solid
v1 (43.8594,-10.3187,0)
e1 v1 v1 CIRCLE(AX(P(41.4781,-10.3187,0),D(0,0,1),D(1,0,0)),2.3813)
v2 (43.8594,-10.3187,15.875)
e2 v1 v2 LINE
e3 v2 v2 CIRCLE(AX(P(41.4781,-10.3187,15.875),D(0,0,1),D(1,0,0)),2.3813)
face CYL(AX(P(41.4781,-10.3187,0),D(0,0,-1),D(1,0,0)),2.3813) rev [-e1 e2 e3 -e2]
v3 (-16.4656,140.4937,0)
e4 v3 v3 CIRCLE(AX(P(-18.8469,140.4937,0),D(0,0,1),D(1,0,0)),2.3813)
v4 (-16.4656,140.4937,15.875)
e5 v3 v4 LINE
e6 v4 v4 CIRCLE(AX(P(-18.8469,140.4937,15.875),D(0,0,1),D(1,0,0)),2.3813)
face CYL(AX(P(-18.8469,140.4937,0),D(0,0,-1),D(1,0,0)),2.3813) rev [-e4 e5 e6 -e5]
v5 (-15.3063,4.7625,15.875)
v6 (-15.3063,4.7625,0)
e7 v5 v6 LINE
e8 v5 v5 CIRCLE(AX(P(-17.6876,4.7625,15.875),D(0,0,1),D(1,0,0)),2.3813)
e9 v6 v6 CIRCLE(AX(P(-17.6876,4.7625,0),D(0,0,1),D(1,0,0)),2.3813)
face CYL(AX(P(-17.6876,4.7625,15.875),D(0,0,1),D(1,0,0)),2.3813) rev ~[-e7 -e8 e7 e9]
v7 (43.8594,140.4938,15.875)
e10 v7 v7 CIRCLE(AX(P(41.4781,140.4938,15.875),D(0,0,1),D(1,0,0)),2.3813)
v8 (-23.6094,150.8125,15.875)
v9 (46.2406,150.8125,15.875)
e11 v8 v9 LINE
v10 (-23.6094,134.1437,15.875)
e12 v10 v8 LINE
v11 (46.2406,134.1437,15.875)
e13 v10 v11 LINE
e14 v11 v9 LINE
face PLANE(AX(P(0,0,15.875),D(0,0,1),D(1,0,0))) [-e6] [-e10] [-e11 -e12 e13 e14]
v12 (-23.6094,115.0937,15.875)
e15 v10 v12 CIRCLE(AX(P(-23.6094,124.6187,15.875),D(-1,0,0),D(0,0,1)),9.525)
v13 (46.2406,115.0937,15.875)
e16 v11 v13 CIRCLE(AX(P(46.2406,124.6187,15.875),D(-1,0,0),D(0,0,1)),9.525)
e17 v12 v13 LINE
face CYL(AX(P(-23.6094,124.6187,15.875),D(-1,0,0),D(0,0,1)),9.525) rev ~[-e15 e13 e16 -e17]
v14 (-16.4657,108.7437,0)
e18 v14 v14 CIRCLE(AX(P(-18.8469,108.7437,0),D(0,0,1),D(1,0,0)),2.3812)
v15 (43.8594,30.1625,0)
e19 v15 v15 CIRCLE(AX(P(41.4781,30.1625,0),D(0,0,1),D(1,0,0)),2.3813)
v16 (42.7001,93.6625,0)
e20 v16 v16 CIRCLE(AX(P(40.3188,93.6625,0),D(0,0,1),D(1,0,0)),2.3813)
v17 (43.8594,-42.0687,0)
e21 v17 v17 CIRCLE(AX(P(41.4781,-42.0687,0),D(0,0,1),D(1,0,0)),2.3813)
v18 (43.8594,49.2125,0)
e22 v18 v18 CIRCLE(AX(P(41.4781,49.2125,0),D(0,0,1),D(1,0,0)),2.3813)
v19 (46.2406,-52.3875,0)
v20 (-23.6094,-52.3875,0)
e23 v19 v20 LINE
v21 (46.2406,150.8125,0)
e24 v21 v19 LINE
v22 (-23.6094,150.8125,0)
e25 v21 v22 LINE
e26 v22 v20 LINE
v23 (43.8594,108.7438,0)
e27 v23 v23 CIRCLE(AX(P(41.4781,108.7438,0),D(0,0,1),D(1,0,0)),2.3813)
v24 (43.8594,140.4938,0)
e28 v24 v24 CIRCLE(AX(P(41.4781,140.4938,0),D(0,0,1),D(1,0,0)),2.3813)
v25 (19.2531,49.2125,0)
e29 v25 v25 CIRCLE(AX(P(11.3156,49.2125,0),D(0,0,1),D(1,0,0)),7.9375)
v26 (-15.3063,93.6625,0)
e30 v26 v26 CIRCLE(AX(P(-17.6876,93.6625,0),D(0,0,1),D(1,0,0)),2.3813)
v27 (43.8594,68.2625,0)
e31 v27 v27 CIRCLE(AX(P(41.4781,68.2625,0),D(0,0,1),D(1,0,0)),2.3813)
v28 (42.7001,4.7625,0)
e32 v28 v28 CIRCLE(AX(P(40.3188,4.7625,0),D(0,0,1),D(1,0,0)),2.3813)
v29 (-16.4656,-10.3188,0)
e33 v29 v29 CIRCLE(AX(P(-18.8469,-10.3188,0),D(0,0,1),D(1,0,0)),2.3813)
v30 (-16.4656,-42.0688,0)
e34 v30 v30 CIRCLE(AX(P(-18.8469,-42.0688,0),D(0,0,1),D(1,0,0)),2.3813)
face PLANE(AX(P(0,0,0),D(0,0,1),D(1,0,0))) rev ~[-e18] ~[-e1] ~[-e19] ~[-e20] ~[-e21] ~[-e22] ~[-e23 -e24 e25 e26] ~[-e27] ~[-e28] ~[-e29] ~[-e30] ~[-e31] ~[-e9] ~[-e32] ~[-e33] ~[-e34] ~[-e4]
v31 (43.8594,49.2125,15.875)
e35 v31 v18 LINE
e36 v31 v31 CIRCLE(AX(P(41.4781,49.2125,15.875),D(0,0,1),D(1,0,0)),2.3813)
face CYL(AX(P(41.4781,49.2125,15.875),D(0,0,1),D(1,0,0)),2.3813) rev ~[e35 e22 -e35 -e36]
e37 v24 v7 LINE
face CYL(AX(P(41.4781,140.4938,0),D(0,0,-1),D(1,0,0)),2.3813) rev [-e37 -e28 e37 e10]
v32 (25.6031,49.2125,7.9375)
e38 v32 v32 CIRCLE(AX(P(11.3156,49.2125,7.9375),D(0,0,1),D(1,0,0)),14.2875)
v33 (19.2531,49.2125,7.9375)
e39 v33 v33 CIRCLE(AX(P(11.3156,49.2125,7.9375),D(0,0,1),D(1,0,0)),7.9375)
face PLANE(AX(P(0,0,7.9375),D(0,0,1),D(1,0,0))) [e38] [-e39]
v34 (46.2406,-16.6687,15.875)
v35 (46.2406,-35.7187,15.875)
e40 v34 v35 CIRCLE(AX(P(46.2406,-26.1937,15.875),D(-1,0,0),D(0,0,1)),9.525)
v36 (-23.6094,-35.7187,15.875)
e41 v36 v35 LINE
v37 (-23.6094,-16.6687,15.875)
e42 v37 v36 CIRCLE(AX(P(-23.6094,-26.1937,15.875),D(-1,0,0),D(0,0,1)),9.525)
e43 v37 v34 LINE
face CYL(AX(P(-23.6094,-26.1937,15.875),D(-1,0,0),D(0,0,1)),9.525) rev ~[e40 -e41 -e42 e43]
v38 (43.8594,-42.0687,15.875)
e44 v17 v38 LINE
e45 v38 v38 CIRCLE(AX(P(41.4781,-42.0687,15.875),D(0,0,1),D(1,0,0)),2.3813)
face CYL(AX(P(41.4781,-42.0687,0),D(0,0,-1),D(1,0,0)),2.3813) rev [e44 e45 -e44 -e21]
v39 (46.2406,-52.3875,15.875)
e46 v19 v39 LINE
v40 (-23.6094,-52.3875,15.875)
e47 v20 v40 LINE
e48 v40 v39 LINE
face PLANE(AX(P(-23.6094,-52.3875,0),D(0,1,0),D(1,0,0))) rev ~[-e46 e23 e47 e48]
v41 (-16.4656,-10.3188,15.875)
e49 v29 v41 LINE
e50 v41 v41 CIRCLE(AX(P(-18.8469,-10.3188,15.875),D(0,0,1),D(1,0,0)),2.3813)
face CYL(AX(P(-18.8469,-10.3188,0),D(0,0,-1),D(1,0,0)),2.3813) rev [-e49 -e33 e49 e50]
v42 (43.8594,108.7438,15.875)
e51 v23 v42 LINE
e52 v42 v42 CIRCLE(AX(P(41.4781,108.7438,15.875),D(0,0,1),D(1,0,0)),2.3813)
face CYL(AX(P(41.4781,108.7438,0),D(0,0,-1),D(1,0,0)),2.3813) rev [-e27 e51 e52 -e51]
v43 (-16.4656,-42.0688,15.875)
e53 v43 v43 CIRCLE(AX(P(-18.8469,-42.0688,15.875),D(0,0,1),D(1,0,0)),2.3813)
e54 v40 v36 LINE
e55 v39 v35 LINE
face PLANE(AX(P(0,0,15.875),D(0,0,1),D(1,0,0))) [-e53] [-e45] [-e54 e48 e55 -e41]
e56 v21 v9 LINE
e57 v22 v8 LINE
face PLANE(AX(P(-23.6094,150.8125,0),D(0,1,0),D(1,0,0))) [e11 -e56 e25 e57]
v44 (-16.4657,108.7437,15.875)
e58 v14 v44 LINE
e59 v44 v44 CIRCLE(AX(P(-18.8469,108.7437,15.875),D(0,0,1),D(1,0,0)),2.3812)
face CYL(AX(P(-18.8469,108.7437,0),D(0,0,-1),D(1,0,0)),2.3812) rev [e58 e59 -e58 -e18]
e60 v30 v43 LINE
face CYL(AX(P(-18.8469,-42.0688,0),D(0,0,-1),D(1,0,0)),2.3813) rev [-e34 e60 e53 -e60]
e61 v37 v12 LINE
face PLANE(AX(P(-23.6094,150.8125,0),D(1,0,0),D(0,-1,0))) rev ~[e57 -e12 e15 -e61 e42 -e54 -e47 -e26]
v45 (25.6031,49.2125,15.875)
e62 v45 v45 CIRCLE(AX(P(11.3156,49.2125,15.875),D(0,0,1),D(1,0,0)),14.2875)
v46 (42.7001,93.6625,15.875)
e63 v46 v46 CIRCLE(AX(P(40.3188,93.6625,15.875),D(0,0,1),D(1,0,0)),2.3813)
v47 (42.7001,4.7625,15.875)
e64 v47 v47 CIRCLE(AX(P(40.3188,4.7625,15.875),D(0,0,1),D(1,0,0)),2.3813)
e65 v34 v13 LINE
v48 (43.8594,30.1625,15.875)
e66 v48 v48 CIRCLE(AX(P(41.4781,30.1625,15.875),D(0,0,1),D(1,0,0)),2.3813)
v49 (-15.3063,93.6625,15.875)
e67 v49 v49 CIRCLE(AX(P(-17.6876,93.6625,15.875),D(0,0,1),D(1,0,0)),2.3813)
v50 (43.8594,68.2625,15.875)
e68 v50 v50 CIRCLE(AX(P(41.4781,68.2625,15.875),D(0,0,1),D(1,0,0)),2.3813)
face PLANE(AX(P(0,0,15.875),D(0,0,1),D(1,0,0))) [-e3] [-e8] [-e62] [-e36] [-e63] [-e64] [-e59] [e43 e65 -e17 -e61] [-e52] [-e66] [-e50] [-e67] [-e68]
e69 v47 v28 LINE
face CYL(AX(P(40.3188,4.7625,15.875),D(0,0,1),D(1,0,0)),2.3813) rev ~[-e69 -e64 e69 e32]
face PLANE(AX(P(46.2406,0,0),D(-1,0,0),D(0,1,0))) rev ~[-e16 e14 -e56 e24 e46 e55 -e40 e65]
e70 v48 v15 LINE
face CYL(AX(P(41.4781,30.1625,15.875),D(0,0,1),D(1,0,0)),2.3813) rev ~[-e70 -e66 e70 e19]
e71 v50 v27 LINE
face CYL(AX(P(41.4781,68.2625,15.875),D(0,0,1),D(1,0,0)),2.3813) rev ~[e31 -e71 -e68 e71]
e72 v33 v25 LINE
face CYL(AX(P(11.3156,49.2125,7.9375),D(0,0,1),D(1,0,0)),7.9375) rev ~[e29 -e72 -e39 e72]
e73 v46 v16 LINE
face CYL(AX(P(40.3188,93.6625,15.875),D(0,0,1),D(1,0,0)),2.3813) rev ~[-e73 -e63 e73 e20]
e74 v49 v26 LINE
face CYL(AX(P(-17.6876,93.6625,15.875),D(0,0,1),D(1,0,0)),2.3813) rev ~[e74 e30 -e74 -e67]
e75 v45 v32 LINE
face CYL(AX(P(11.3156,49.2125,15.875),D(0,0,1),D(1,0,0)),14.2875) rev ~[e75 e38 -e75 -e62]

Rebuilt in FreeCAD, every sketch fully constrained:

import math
import FreeCAD as App
import Part
import Sketcher
Q = App.Units.Quantity


def add_polygon(sketch, points):
    """Adds a closed chain of lines whose ends are joined by coincident constraints."""
    first, n = sketch.GeometryCount, len(points)
    for a, b in zip(points, points[1:] + points[:1]):
        sketch.addGeometry(Part.LineSegment(App.Vector(*a, 0), App.Vector(*b, 0)), False)
    for i in range(n):
        sketch.addConstraint(Sketcher.Constraint("Coincident", first + i, 2, first + (i + 1) % n, 1))

doc = App.newDocument("Part")
body = doc.addObject("PartDesign::Body", "Body")

sketch1 = body.newObject("Sketcher::SketchObject", "Sketch")
sketch1.AttachmentSupport = (doc.getObject("XY_Plane"), [""])
sketch1.MapMode = "FlatFace"
add_polygon(sketch1, [(-23.6, 150.8), (-23.6, -52.4), (46.2, -52.4), (46.2, 150.8)])
sketch1.addGeometry(Part.Circle(App.Vector(-18.8, 108.7, 0), App.Vector(0, 0, 1), 2.4), False)
sketch1.addGeometry(Part.Circle(App.Vector(-18.8, 140.5, 0), App.Vector(0, 0, 1), 2.4), False)
sketch1.addGeometry(Part.Circle(App.Vector(-18.8, -10.3, 0), App.Vector(0, 0, 1), 2.4), False)
sketch1.addGeometry(Part.Circle(App.Vector(-18.8, -42.1, 0), App.Vector(0, 0, 1), 2.4), False)
sketch1.addGeometry(Part.Circle(App.Vector(41.5, 108.7, 0), App.Vector(0, 0, 1), 2.4), False)
sketch1.addGeometry(Part.Circle(App.Vector(41.5, 140.5, 0), App.Vector(0, 0, 1), 2.4), False)
sketch1.addGeometry(Part.Circle(App.Vector(41.5, -42.1, 0), App.Vector(0, 0, 1), 2.4), False)
sketch1.addGeometry(Part.Circle(App.Vector(41.5, -10.3, 0), App.Vector(0, 0, 1), 2.4), False)
sketch1.addConstraint([
    Sketcher.Constraint("Vertical", 0),
    Sketcher.Constraint("Horizontal", 1),
    Sketcher.Constraint("Vertical", 2),
    Sketcher.Constraint("Horizontal", 3),
    Sketcher.Constraint("Equal", 4, 5),
    Sketcher.Constraint("Equal", 5, 6),
    Sketcher.Constraint("Equal", 6, 7),
    Sketcher.Constraint("Equal", 7, 8),
    Sketcher.Constraint("Equal", 8, 9),
    Sketcher.Constraint("Equal", 9, 10),
    Sketcher.Constraint("Equal", 10, 11),
    Sketcher.Constraint("Horizontal", 4, 3, 8, 3),
    Sketcher.Constraint("Horizontal", 5, 3, 9, 3),
    Sketcher.Constraint("Horizontal", 7, 3, 10, 3),
    Sketcher.Constraint("Horizontal", 6, 3, 11, 3),
    Sketcher.Constraint("Vertical", 4, 3, 5, 3),
    Sketcher.Constraint("Vertical", 5, 3, 6, 3),
    Sketcher.Constraint("Vertical", 6, 3, 7, 3),
    Sketcher.Constraint("Vertical", 8, 3, 9, 3),
    Sketcher.Constraint("Vertical", 9, 3, 10, 3),
    Sketcher.Constraint("Vertical", 10, 3, 11, 3),
    Sketcher.Constraint("DistanceY", 0, 2, 0, 1, Q("8 in")),
    Sketcher.Constraint("Diameter", 4, Q("0.1875 in")),
    Sketcher.Constraint("DistanceX", 1, 1, 1, 2, Q("2.75 in")),
    Sketcher.Constraint("DistanceY", 4, 3, 5, 3, Q("1.25 in")),
    Sketcher.Constraint("DistanceY", 7, 3, 6, 3, Q("1.25 in")),
    Sketcher.Constraint("DistanceX", 4, 3, -1, 1, Q("0.742 in")),
    Sketcher.Constraint("DistanceY", -1, 1, 4, 3, Q("4.281248 in")),
    Sketcher.Constraint("DistanceY", 6, 3, -1, 1, Q("0.406252 in")),
    Sketcher.Constraint("DistanceX", -1, 1, 8, 3, Q("1.633 in")),
    Sketcher.Constraint("DistanceY", 0, 2, -1, 1, Q("2.0625 in")),
    Sketcher.Constraint("DistanceX", 0, 2, 7, 3, Q("0.1875 in")),
])
pad1 = body.newObject("PartDesign::Pad", "Pad")
pad1.Profile = sketch1
pad1.Length = Q("0.625 in")

sketch2 = body.newObject("Sketcher::SketchObject", "Sketch001")
sketch2.AttachmentSupport = (doc.getObject("YZ_Plane"), [""])
sketch2.MapMode = "FlatFace"
sketch2.AttachmentOffset = App.Placement(App.Vector(0, 0, -0.9295039 * 25.4), App.Rotation())
sketch2.addGeometry([
    Part.LineSegment(App.Vector(-36, 16, 0), App.Vector(-17, 16, 0)),
    Part.ArcOfCircle(Part.Circle(App.Vector(-26, 16, 0), App.Vector(0, 0, 1), 10), math.radians(180), math.radians(360)),
    Part.ArcOfCircle(Part.Circle(App.Vector(125, 16, 0), App.Vector(0, 0, 1), 10), math.radians(180), math.radians(360)),
    Part.LineSegment(App.Vector(115, 16, 0), App.Vector(134, 16, 0)),
], False)
sketch2.addConstraint([
    Sketcher.Constraint("Coincident", 0, 1, 1, 1),
    Sketcher.Constraint("Coincident", 1, 2, 0, 2),
    Sketcher.Constraint("Coincident", 2, 1, 3, 1),
    Sketcher.Constraint("Coincident", 3, 2, 2, 2),
    Sketcher.Constraint("Horizontal", 0),
    Sketcher.Constraint("Horizontal", 3),
    Sketcher.Constraint("Equal", 1, 2),
    Sketcher.Constraint("Horizontal", 1, 3, 2, 3),
    Sketcher.Constraint("Horizontal", 2, 3, 0, 1),
    Sketcher.Constraint("Horizontal", 1, 2, 2, 1),
    Sketcher.Constraint("Radius", 1, Q("0.375 in")),
    Sketcher.Constraint("DistanceX", 1, 3, -1, 1, Q("1.031248 in")),
    Sketcher.Constraint("DistanceY", -1, 1, 1, 3, Q("0.625 in")),
    Sketcher.Constraint("DistanceX", -1, 1, 2, 3, Q("4.906248 in")),
])
pocket1 = body.newObject("PartDesign::Pocket", "Pocket")
pocket1.Profile = sketch2
pocket1.Length = Q("3 in")
pocket1.Reversed = True

sketch3 = body.newObject("Sketcher::SketchObject", "Sketch002")
sketch3.AttachmentSupport = (doc.getObject("XY_Plane"), [""])
sketch3.MapMode = "FlatFace"
sketch3.AttachmentOffset = App.Placement(App.Vector(0, 0, 0.625 * 25.4), App.Rotation())
sketch3.addGeometry([
    Part.Circle(App.Vector(41.5, 68.3, 0), App.Vector(0, 0, 1), 2.4),
    Part.Circle(App.Vector(41.5, 49.2, 0), App.Vector(0, 0, 1), 2.4),
    Part.Circle(App.Vector(41.5, 30.2, 0), App.Vector(0, 0, 1), 2.4),
], False)
sketch3.addConstraint([
    Sketcher.Constraint("Equal", 0, 1),
    Sketcher.Constraint("Equal", 1, 2),
    Sketcher.Constraint("Vertical", 0, 3, 1, 3),
    Sketcher.Constraint("Vertical", 1, 3, 2, 3),
    Sketcher.Constraint("DistanceY", 1, 3, 0, 3, Q("0.75 in")),
    Sketcher.Constraint("DistanceY", 2, 3, 1, 3, Q("0.75 in")),
    Sketcher.Constraint("Diameter", 0, Q("0.1875 in")),
    Sketcher.Constraint("DistanceX", -1, 1, 0, 3, Q("1.633 in")),
    Sketcher.Constraint("DistanceY", -1, 1, 0, 3, Q("2.6875 in")),
])
pocket2 = body.newObject("PartDesign::Pocket", "Pocket001")
pocket2.Profile = sketch3
pocket2.Length = Q("3 in")

sketch4 = body.newObject("Sketcher::SketchObject", "Sketch003")
sketch4.AttachmentSupport = (doc.getObject("XY_Plane"), [""])
sketch4.MapMode = "FlatFace"
sketch4.AttachmentOffset = App.Placement(App.Vector(0, 0, 0.625 * 25.4), App.Rotation())
sketch4.addGeometry(Part.Circle(App.Vector(11, 49, 0), App.Vector(0, 0, 1), 14), False)
sketch4.addConstraint([
    Sketcher.Constraint("Diameter", 0, Q("1.125 in")),
    Sketcher.Constraint("DistanceY", -1, 1, 0, 3, Q("1.9375 in")),
    Sketcher.Constraint("DistanceX", -1, 1, 0, 3, Q("0.4455 in")),
])
pocket3 = body.newObject("PartDesign::Pocket", "Pocket002")
pocket3.Profile = sketch4
pocket3.Length = Q("0.3125 in")

sketch5 = body.newObject("Sketcher::SketchObject", "Sketch004")
sketch5.AttachmentSupport = (doc.getObject("XY_Plane"), [""])
sketch5.MapMode = "FlatFace"
sketch5.AttachmentOffset = App.Placement(App.Vector(0, 0, 0.3125 * 25.4), App.Rotation())
sketch5.addGeometry(Part.Circle(App.Vector(11, 49, 0), App.Vector(0, 0, 1), 8), False)
sketch5.addConstraint([
    Sketcher.Constraint("Diameter", 0, Q("0.625 in")),
    Sketcher.Constraint("DistanceY", -1, 1, 0, 3, Q("1.9375 in")),
    Sketcher.Constraint("DistanceX", -1, 1, 0, 3, Q("0.4455 in")),
])
pocket4 = body.newObject("PartDesign::Pocket", "Pocket003")
pocket4.Profile = sketch5
pocket4.Length = Q("0.3125 in")

sketch6 = body.newObject("Sketcher::SketchObject", "Sketch005")
sketch6.AttachmentSupport = (doc.getObject("XY_Plane"), [""])
sketch6.MapMode = "FlatFace"
sketch6.AttachmentOffset = App.Placement(App.Vector(0, 0, 0.625 * 25.4), App.Rotation())
sketch6.addGeometry([
    Part.Circle(App.Vector(40.3, 93.7, 0), App.Vector(0, 0, 1), 2.4),
    Part.Circle(App.Vector(40.3, 4.8, 0), App.Vector(0, 0, 1), 2.4),
    Part.Circle(App.Vector(-17.7, 93.7, 0), App.Vector(0, 0, 1), 2.4),
    Part.Circle(App.Vector(-17.7, 4.8, 0), App.Vector(0, 0, 1), 2.4),
], False)
sketch6.addConstraint([
    Sketcher.Constraint("Equal", 0, 1),
    Sketcher.Constraint("Equal", 1, 2),
    Sketcher.Constraint("Equal", 2, 3),
    Sketcher.Constraint("Horizontal", 0, 3, 2, 3),
    Sketcher.Constraint("Horizontal", 1, 3, 3, 3),
    Sketcher.Constraint("Vertical", 0, 3, 1, 3),
    Sketcher.Constraint("Vertical", 2, 3, 3, 3),
    Sketcher.Constraint("Diameter", 0, Q("0.1875 in")),
    Sketcher.Constraint("DistanceY", -1, 1, 1, 3, Q("0.1875 in")),
    Sketcher.Constraint("DistanceY", 1, 3, 0, 3, Q("3.5 in")),
    Sketcher.Constraint("DistanceX", -1, 1, 0, 3, Q("40.3188 mm")),
    Sketcher.Constraint("DistanceX", 2, 3, -1, 1, Q("17.6876 mm")),
])
pocket5 = body.newObject("PartDesign::Pocket", "Pocket004")
pocket5.Profile = sketch6
pocket5.Length = Q("0.75 in")

doc.recompute()
